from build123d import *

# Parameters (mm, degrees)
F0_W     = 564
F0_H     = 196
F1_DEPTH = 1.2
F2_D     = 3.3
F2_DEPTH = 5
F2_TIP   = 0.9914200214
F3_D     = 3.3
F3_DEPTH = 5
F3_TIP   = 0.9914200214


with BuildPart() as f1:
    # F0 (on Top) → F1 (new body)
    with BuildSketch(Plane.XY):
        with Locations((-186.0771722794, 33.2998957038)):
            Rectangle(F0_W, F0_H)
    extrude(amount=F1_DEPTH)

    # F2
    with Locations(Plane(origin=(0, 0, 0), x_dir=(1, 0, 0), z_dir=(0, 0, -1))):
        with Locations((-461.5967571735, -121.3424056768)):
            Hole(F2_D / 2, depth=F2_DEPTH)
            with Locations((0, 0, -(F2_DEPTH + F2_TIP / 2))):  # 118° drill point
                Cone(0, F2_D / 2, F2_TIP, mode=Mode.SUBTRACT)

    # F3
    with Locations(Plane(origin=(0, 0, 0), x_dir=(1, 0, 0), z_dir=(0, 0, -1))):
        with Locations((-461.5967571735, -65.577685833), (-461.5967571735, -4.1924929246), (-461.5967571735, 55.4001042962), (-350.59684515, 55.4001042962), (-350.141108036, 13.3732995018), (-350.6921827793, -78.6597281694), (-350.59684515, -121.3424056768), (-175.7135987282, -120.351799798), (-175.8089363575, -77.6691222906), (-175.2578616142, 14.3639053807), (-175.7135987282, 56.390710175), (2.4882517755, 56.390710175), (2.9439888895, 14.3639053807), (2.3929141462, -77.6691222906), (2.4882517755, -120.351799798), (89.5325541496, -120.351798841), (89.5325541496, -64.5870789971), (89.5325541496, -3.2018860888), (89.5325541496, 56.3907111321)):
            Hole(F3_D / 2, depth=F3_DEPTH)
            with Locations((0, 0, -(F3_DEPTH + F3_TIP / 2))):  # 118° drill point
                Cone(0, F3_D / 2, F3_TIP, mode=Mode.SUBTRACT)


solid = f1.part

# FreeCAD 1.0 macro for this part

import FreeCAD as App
import Part
import Sketcher

V = App.Vector


def add_polygon(sketch, points):
    """Adds a closed chain of lines whose ends are joined by coincident constraints."""
    first, n = sketch.GeometryCount, len(points)
    for a, b in zip(points, points[1:] + points[:1]):
        sketch.addGeometry(Part.LineSegment(App.Vector(*a, 0), App.Vector(*b, 0)), False)
    for i in range(n):
        sketch.addConstraint(Sketcher.Constraint("Coincident", first + i, 2, first + (i + 1) % n, 1))

doc = App.newDocument("Part")
body = doc.addObject("PartDesign::Body", "Body")

sketch1 = body.newObject("Sketcher::SketchObject", "Sketch")
sketch1.AttachmentSupport = (doc.getObject("XY_Plane"), [""])
sketch1.MapMode = "FlatFace"
add_polygon(sketch1, [(-468, 131), (-468, -65), (96, -65), (96, 131)])
sketch1.addConstraint([
    Sketcher.Constraint("Vertical", 0),
    Sketcher.Constraint("Horizontal", 1),
    Sketcher.Constraint("Vertical", 2),
    Sketcher.Constraint("Horizontal", 3),
    Sketcher.Constraint("DistanceX", 1, 1, 1, 2, 564.0),
    Sketcher.Constraint("DistanceY", 0, 2, 0, 1, 196.0),
    Sketcher.Constraint("DistanceX", 0, 2, -1, 1, 468.077172),
    Sketcher.Constraint("DistanceY", 0, 2, -1, 1, 64.700104),
])
pad1 = body.newObject("PartDesign::Pad", "Pad")
pad1.Profile = sketch1
pad1.Length = 1.2

sketch2 = body.newObject("Sketcher::SketchObject", "Sketch001")
sketch2.AttachmentSupport = (doc.getObject("XY_Plane"), [""])
sketch2.MapMode = "FlatFace"
sketch2.addGeometry(Part.Circle(V(-461.6, 121.3, 0), V(0, 0, 1), 1.6), False)
sketch2.addConstraint([
    Sketcher.Constraint("Diameter", 0, 3.3),
    Sketcher.Constraint("DistanceX", 0, 3, -1, 1, 461.596757),
    Sketcher.Constraint("DistanceY", -1, 1, 0, 3, 121.342406),
])
doc.recompute()
hole = body.newObject("PartDesign::Hole", "Hole")
hole.Profile = sketch2
hole.ThreadType = "None"
hole.Diameter = 3.3
hole.DepthType = "Dimension"
hole.Depth = 5
hole.DrillPoint = "Angled"
hole.DrillPointAngle = 118
hole.Reversed = True

sketch3 = body.newObject("Sketcher::SketchObject", "Sketch002")
sketch3.AttachmentSupport = (doc.getObject("XY_Plane"), [""])
sketch3.MapMode = "FlatFace"
sketch3.addGeometry([
    Part.Circle(V(-461.6, 65.6, 0), V(0, 0, 1), 1.6),
    Part.Circle(V(-461.6, 4.2, 0), V(0, 0, 1), 1.6),
    Part.Circle(V(-461.6, -55.4, 0), V(0, 0, 1), 1.6),
    Part.Circle(V(-350.6, -55.4, 0), V(0, 0, 1), 1.6),
    Part.Circle(V(-350.1, -13.4, 0), V(0, 0, 1), 1.6),
    Part.Circle(V(-350.7, 78.7, 0), V(0, 0, 1), 1.6),
    Part.Circle(V(-350.6, 121.3, 0), V(0, 0, 1), 1.6),
    Part.Circle(V(-175.7, 120.4, 0), V(0, 0, 1), 1.6),
    Part.Circle(V(-175.8, 77.7, 0), V(0, 0, 1), 1.6),
    Part.Circle(V(-175.3, -14.4, 0), V(0, 0, 1), 1.6),
    Part.Circle(V(-175.7, -56.4, 0), V(0, 0, 1), 1.6),
    Part.Circle(V(2.5, -56.4, 0), V(0, 0, 1), 1.6),
    Part.Circle(V(2.9, -14.4, 0), V(0, 0, 1), 1.6),
    Part.Circle(V(2.4, 77.7, 0), V(0, 0, 1), 1.6),
    Part.Circle(V(2.5, 120.4, 0), V(0, 0, 1), 1.6),
    Part.Circle(V(89.5, 120.4, 0), V(0, 0, 1), 1.6),
    Part.Circle(V(89.5, 64.6, 0), V(0, 0, 1), 1.6),
    Part.Circle(V(89.5, 3.2, 0), V(0, 0, 1), 1.6),
    Part.Circle(V(89.5, -56.4, 0), V(0, 0, 1), 1.6),
], False)
sketch3.addConstraint([
    Sketcher.Constraint("Equal", 0, 1),
    Sketcher.Constraint("Equal", 1, 2),
    Sketcher.Constraint("Equal", 2, 3),
    Sketcher.Constraint("Equal", 3, 4),
    Sketcher.Constraint("Equal", 4, 5),
    Sketcher.Constraint("Equal", 5, 6),
    Sketcher.Constraint("Equal", 6, 7),
    Sketcher.Constraint("Equal", 7, 8),
    Sketcher.Constraint("Equal", 8, 9),
    Sketcher.Constraint("Equal", 9, 10),
    Sketcher.Constraint("Equal", 10, 11),
    Sketcher.Constraint("Equal", 11, 12),
    Sketcher.Constraint("Equal", 12, 13),
    Sketcher.Constraint("Equal", 13, 14),
    Sketcher.Constraint("Equal", 14, 15),
    Sketcher.Constraint("Equal", 15, 16),
    Sketcher.Constraint("Equal", 16, 17),
    Sketcher.Constraint("Equal", 17, 18),
    Sketcher.Constraint("Horizontal", 2, 3, 3, 3),
    Sketcher.Constraint("Horizontal", 10, 3, 11, 3),
    Sketcher.Constraint("Horizontal", 9, 3, 12, 3),
    Sketcher.Constraint("Horizontal", 8, 3, 13, 3),
    Sketcher.Constraint("Horizontal", 7, 3, 14, 3),
    Sketcher.Constraint("Horizontal", 14, 3, 15, 3),
    Sketcher.Constraint("Horizontal", 11, 3, 18, 3),
    Sketcher.Constraint("Vertical", 0, 3, 1, 3),
    Sketcher.Constraint("Vertical", 1, 3, 2, 3),
    Sketcher.Constraint("Vertical", 3, 3, 6, 3),
    Sketcher.Constraint("Vertical", 7, 3, 10, 3),
    Sketcher.Constraint("Vertical", 11, 3, 14, 3),
    Sketcher.Constraint("Vertical", 15, 3, 16, 3),
    Sketcher.Constraint("Vertical", 16, 3, 17, 3),
    Sketcher.Constraint("Vertical", 17, 3, 18, 3),
    Sketcher.Constraint("Diameter", 0, 3.3),
    Sketcher.Constraint("DistanceY", 4, 3, -1, 1, 13.3733),
    Sketcher.Constraint("DistanceX", 7, 3, -1, 1, 175.713599),
    Sketcher.Constraint("DistanceY", -1, 1, 7, 3, 120.3518),
    Sketcher.Constraint("DistanceY", 3, 3, 9, 3, 41.036199),
    Sketcher.Constraint("DistanceX", 4, 3, -1, 1, 350.141108),
    Sketcher.Constraint("DistanceY", -1, 1, 5, 3, 78.659728),
    Sketcher.Constraint("DistanceX", 9, 3, -1, 1, 175.257862),
    Sketcher.Constraint("DistanceY", 10, 3, -1, 1, 56.39071),
    Sketcher.Constraint("DistanceX", -1, 1, 11, 3, 2.488252),
    Sketcher.Constraint("DistanceX", -1, 1, 12, 3, 2.943989),
    Sketcher.Constraint("DistanceY", -1, 1, 16, 3, 64.587079),
    Sketcher.Constraint("DistanceY", 2, 3, 0, 3, 120.97779),
    Sketcher.Constraint("DistanceX", 1, 3, 4, 3, 111.455649),
    Sketcher.Constraint("DistanceY", 0, 3, 6, 3, 55.76472),
    Sketcher.Constraint("DistanceX", 6, 3, 8, 3, 174.787909),
    Sketcher.Constraint("DistanceX", 4, 3, 8, 3, 174.332172),
    Sketcher.Constraint("DistanceY", 4, 3, 8, 3, 91.042422),
    Sketcher.Constraint("DistanceX", 5, 3, 9, 3, 175.434321),
    Sketcher.Constraint("DistanceX", 8, 3, 13, 3, 178.201851),
    Sketcher.Constraint("DistanceX", 13, 3, 15, 3, 87.13964),
    Sketcher.Constraint("DistanceY", 12, 3, 17, 3, 17.565791),
    Sketcher.Constraint("DistanceY", -1, 1, 0, 3, 65.577686),
    Sketcher.Constraint("DistanceY", -1, 1, 1, 3, 4.192493),
])
doc.recompute()
hole2 = body.newObject("PartDesign::Hole", "Hole001")
hole2.Profile = sketch3
hole2.ThreadType = "None"
hole2.Diameter = 3.3
hole2.DepthType = "Dimension"
hole2.Depth = 5
hole2.DrillPoint = "Angled"
hole2.DrillPointAngle = 118
hole2.Reversed = True

doc.recompute()
